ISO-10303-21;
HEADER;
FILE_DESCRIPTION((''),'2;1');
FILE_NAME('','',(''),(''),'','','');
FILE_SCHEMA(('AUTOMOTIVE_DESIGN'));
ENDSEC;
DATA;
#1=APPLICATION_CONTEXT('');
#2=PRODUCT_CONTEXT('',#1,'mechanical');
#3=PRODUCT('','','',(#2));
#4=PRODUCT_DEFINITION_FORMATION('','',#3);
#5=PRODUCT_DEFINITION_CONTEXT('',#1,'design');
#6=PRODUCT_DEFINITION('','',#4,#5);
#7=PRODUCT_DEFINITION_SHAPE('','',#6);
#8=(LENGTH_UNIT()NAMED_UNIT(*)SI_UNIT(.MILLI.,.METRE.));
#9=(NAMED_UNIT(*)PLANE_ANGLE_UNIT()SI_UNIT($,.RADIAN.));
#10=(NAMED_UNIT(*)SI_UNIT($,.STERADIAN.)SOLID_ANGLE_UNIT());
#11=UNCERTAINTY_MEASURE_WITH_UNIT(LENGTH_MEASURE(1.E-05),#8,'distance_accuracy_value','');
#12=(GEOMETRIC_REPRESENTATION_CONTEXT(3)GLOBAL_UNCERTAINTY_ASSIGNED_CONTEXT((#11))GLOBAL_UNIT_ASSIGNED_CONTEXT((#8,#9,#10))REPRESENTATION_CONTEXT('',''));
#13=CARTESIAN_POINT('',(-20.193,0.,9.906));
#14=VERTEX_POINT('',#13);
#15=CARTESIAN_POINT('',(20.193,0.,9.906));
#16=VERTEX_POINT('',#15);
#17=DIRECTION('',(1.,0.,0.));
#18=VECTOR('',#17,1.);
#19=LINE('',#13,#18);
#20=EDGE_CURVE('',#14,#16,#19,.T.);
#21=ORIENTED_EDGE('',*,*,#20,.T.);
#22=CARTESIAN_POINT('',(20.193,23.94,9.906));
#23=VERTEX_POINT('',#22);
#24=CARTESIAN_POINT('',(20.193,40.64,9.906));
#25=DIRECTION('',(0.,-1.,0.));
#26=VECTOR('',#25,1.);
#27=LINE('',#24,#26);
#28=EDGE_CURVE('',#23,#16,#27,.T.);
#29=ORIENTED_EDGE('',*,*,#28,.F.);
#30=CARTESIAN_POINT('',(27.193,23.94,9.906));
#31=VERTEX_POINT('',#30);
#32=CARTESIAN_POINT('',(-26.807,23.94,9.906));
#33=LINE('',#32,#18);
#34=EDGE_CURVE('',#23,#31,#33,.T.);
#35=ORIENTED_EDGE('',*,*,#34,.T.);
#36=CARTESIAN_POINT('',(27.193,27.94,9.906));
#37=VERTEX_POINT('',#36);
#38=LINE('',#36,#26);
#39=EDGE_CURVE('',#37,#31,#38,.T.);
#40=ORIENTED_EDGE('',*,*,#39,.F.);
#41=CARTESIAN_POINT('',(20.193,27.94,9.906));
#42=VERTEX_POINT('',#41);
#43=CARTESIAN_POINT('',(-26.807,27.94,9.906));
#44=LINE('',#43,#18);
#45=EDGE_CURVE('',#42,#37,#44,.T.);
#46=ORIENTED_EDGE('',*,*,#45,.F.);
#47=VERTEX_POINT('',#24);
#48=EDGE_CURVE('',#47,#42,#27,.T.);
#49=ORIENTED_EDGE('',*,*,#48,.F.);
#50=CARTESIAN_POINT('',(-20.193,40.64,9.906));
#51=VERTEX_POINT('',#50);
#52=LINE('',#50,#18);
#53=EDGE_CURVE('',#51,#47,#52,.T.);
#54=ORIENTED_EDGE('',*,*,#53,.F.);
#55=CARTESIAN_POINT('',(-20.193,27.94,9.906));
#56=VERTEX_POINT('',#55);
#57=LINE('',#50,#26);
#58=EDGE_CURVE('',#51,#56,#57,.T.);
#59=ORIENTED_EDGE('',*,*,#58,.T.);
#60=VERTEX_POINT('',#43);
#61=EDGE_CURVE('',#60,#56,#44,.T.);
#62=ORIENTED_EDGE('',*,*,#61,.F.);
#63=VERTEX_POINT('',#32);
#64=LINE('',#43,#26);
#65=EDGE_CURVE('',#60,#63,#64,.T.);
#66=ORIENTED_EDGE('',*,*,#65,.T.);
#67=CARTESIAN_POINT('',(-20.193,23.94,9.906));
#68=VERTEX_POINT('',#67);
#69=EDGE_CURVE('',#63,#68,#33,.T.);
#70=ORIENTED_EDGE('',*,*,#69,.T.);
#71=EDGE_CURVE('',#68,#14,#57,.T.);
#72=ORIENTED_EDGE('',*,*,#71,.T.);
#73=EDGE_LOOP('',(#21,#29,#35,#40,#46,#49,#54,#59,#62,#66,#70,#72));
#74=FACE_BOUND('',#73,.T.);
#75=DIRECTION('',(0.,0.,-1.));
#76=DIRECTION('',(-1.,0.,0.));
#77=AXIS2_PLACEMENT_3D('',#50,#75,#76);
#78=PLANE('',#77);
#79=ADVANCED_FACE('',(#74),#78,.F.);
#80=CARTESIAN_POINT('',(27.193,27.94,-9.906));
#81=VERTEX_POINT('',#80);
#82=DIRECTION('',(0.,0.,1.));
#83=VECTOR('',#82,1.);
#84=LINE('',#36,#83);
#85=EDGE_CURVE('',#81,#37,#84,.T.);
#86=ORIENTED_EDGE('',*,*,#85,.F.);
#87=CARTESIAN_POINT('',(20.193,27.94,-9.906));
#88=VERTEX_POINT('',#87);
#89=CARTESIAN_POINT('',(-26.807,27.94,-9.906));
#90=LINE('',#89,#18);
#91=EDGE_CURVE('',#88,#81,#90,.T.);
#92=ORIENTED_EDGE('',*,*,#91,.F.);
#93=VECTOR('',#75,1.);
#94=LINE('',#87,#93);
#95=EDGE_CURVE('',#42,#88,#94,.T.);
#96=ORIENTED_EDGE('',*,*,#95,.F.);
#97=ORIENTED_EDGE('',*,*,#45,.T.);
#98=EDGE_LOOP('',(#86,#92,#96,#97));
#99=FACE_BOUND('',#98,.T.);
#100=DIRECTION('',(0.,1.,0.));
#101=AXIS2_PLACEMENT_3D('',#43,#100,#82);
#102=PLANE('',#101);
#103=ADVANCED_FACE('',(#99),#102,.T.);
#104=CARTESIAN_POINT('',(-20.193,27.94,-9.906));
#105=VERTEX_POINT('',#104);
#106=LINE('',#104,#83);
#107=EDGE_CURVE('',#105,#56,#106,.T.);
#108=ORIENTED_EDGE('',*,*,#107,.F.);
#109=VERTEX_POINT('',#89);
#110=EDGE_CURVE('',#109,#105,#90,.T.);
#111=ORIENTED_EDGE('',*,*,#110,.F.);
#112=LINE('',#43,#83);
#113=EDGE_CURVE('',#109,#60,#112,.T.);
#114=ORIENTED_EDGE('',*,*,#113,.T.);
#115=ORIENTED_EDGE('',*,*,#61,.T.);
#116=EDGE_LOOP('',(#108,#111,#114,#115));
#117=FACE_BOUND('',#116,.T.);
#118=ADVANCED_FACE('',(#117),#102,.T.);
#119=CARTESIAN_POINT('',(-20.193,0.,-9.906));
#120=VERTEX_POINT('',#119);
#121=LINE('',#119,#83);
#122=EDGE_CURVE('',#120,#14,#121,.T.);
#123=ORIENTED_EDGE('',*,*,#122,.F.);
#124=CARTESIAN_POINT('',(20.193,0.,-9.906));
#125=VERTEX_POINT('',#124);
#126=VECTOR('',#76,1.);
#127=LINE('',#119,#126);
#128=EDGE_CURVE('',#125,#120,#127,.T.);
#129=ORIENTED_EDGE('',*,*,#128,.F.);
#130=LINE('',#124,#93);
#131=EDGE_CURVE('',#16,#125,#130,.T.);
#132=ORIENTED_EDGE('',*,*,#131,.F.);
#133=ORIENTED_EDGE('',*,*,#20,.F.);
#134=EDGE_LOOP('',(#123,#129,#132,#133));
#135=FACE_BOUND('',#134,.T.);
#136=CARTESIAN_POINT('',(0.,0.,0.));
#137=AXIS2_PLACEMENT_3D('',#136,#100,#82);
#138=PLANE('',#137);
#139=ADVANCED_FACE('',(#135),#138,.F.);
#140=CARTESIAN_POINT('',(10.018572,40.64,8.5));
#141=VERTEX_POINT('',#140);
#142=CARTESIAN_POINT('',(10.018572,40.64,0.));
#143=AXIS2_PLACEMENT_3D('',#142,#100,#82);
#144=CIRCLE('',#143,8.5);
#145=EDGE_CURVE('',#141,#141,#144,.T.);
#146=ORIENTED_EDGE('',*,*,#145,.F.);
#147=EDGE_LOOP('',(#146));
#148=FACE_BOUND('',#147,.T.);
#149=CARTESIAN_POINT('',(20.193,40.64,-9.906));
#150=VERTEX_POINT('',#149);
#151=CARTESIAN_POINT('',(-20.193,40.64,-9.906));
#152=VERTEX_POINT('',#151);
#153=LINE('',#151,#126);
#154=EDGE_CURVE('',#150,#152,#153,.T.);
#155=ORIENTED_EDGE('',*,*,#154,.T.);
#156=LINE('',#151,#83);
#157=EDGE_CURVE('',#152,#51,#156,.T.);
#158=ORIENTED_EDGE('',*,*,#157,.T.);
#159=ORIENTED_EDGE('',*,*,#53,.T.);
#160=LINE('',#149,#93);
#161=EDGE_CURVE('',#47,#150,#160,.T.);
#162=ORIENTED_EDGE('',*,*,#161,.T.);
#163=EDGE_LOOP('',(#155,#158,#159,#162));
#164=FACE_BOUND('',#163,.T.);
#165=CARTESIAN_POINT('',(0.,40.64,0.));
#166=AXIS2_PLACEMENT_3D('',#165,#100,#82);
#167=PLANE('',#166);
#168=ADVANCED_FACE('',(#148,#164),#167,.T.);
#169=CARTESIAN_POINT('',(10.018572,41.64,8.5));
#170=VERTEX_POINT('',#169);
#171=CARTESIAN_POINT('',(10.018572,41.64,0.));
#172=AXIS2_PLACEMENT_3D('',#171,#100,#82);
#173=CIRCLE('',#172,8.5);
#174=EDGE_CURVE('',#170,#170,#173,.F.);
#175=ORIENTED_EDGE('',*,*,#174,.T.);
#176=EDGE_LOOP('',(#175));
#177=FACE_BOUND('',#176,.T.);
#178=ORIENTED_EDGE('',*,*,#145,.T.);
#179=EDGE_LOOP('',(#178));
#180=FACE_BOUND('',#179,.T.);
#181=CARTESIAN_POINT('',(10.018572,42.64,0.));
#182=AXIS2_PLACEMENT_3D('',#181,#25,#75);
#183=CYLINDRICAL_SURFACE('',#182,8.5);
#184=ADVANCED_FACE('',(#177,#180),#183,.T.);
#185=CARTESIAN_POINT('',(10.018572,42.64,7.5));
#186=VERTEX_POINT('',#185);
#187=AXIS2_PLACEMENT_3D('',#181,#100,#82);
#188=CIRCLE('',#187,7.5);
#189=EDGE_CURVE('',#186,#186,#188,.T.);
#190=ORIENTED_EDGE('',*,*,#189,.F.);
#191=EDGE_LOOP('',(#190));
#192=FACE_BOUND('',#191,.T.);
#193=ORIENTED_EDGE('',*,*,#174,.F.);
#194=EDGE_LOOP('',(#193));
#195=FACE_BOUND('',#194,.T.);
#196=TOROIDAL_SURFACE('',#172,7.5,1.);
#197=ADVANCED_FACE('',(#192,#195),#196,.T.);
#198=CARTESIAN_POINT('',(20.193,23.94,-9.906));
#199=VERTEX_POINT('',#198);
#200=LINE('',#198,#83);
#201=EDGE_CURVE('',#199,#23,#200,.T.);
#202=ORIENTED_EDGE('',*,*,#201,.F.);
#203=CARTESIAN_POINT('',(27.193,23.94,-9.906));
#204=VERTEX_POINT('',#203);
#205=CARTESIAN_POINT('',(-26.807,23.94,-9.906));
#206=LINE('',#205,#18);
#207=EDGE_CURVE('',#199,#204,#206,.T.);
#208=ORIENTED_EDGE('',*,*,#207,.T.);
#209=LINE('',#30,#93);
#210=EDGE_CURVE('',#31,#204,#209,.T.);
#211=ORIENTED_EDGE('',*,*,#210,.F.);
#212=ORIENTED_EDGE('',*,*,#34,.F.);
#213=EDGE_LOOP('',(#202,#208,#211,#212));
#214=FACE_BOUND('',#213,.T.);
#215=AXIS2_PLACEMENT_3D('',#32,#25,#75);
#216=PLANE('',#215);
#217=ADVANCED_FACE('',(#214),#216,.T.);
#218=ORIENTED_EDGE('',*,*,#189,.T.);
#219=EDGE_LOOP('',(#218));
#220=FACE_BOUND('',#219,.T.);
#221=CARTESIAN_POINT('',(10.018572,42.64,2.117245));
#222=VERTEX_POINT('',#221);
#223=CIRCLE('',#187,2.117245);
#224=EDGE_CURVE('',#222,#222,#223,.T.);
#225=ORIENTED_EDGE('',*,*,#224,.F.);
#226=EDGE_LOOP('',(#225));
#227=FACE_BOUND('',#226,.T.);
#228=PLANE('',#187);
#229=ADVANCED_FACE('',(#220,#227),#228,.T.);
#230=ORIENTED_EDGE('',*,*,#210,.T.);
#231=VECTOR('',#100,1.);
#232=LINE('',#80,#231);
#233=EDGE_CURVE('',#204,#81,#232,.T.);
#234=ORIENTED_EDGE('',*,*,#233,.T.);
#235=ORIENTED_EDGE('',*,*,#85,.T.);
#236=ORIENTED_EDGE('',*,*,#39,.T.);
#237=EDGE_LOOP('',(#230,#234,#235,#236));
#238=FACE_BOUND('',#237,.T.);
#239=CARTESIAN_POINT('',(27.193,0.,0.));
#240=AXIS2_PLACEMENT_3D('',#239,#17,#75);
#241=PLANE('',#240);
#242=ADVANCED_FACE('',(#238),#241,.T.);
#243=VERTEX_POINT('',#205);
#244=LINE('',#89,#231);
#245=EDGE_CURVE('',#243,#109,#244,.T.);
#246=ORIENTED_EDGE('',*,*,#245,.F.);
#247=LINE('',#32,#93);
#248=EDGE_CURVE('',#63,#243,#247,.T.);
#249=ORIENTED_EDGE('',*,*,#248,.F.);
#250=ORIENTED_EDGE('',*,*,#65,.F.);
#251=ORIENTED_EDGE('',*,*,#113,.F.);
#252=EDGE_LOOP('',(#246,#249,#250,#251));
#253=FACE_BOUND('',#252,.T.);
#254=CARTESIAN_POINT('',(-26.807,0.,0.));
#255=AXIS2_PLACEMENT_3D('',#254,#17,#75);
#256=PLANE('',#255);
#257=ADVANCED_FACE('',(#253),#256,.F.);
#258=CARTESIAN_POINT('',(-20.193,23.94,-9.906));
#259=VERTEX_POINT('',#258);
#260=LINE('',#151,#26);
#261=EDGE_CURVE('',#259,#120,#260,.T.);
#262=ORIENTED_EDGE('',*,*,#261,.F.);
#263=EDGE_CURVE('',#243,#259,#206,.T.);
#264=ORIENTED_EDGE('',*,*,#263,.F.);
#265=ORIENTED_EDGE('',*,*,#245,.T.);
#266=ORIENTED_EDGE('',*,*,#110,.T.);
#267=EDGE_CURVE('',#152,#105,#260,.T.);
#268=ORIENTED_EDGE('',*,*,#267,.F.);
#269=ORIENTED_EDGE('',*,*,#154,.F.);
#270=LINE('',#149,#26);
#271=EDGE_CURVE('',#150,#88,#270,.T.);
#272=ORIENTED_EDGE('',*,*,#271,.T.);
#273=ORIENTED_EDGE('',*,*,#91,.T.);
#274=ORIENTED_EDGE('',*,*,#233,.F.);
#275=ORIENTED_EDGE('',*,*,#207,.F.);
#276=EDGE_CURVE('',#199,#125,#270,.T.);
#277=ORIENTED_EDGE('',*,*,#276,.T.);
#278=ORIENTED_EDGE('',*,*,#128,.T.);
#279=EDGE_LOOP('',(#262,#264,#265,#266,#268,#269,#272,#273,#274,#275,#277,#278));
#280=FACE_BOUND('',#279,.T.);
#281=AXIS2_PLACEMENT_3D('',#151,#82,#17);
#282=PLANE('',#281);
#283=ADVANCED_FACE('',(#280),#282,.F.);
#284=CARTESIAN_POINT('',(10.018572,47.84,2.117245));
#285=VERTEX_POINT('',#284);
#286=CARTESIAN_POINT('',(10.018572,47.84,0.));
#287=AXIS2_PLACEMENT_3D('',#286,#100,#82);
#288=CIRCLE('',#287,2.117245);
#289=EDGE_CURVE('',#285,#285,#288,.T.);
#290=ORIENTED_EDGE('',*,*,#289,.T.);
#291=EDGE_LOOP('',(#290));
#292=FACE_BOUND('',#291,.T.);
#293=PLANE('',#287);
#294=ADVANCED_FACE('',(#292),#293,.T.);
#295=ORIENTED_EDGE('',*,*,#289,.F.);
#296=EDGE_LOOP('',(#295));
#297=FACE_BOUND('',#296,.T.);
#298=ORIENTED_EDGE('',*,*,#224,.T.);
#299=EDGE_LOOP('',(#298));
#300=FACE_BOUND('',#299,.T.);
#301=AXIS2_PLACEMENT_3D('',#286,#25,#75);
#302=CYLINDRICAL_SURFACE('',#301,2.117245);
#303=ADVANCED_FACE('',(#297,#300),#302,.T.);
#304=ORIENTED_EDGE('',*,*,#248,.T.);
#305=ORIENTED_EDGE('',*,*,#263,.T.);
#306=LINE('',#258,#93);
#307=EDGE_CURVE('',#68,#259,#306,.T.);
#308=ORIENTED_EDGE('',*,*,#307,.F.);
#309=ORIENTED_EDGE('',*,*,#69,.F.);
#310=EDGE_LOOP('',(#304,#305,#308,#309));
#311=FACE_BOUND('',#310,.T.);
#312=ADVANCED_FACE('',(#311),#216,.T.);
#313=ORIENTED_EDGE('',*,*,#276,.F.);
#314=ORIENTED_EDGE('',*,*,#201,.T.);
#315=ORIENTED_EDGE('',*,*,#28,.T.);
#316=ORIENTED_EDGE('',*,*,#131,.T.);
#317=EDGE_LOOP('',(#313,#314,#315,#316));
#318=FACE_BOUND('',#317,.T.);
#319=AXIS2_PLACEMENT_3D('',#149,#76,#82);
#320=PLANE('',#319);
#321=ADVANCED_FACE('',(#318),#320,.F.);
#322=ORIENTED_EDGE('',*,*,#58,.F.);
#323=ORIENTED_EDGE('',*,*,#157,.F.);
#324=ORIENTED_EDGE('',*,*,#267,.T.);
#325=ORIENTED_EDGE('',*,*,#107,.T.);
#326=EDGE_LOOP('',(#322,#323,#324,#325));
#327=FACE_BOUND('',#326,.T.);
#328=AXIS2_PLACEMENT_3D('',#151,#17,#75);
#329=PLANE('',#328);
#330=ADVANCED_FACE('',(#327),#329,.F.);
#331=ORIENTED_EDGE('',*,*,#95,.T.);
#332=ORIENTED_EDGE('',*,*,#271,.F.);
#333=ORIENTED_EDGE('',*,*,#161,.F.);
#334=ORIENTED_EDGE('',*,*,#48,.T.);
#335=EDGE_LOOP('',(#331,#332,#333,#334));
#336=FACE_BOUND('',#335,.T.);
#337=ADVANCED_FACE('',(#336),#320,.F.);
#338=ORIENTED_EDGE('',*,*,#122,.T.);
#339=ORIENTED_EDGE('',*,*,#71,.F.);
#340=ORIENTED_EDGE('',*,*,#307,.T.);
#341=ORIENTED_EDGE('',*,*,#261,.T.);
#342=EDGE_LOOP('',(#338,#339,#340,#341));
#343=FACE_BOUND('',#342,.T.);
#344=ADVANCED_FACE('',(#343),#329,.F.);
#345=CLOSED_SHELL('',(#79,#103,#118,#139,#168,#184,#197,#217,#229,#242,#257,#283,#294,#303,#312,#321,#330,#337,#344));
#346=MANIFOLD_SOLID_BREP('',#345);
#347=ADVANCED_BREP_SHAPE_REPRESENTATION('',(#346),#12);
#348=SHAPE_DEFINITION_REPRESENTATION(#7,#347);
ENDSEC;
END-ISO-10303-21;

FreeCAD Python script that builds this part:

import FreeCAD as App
import Part
import Sketcher


def edges_at(feature, points):
    """Names of the edges that pass closest to the given points."""
    edges = feature.Shape.Edges
    near = lambda p: min(range(len(edges)), key=lambda i: edges[i].distToShape(Part.Vertex(*p))[0])
    return sorted({f"Edge{near(p) + 1}" for p in points})

doc = App.newDocument("Part")
body = doc.addObject("PartDesign::Body", "Body")

sketch1 = doc.addObject("Sketcher::SketchObject", "Sketch")
body.addObject(sketch1)
sketch1.AttachmentSupport = (doc.XZ_Plane, [""])
sketch1.MapMode = "FlatFace"
sketch1.addGeometry([
    Part.LineSegment(App.Vector(-20, -10, 0), App.Vector(-20, 10, 0)),
    Part.LineSegment(App.Vector(-20, 10, 0), App.Vector(20, 10, 0)),
    Part.LineSegment(App.Vector(20, 10, 0), App.Vector(20, -10, 0)),
    Part.LineSegment(App.Vector(20, -10, 0), App.Vector(-20, -10, 0)),
], False)
sketch1.addConstraint([
    Sketcher.Constraint("Coincident", 0, 2, 1, 1),
    Sketcher.Constraint("Coincident", 1, 2, 2, 1),
    Sketcher.Constraint("Coincident", 2, 2, 3, 1),
    Sketcher.Constraint("Coincident", 3, 2, 0, 1),
    Sketcher.Constraint("Vertical", 0),
    Sketcher.Constraint("Horizontal", 1),
    Sketcher.Constraint("Vertical", 2),
    Sketcher.Constraint("Horizontal", 3),
    Sketcher.Constraint("Symmetric", 0, 2, 2, 2, -1, 1),
    Sketcher.Constraint("DistanceX", 1, 1, 1, 2, 40.386),
    Sketcher.Constraint("DistanceY", 0, 1, 0, 2, 19.812),
])
pad1 = doc.addObject("PartDesign::Pad", "Pad")
body.addObject(pad1)
pad1.Profile = sketch1
pad1.Length = 40.64
pad1.Reversed = True

sketch2 = doc.addObject("Sketcher::SketchObject", "Sketch001")
body.addObject(sketch2)
sketch2.AttachmentSupport = (doc.YZ_Plane, [""])
sketch2.MapMode = "FlatFace"
sketch2.AttachmentOffset = App.Placement(App.Vector(0, 0, 20.193), App.Rotation())
sketch2.addGeometry([
    Part.LineSegment(App.Vector(27.9, 9.9, 0), App.Vector(23.9, 9.9, 0)),
    Part.LineSegment(App.Vector(23.9, 9.9, 0), App.Vector(23.9, -9.9, 0)),
    Part.LineSegment(App.Vector(23.9, -9.9, 0), App.Vector(27.9, -9.9, 0)),
    Part.LineSegment(App.Vector(27.9, -9.9, 0), App.Vector(27.9, 9.9, 0)),
], False)
sketch2.addConstraint([
    Sketcher.Constraint("Coincident", 0, 2, 1, 1),
    Sketcher.Constraint("Coincident", 1, 2, 2, 1),
    Sketcher.Constraint("Coincident", 2, 2, 3, 1),
    Sketcher.Constraint("Coincident", 3, 2, 0, 1),
    Sketcher.Constraint("Horizontal", 0),
    Sketcher.Constraint("Vertical", 1),
    Sketcher.Constraint("Horizontal", 2),
    Sketcher.Constraint("Vertical", 3),
    Sketcher.Constraint("DistanceX", 0, 2, 0, 1, 4.0),
    Sketcher.Constraint("DistanceY", 1, 2, 1, 1, 19.812),
    Sketcher.Constraint("DistanceX", -1, 1, 0, 2, 23.94),
    Sketcher.Constraint("DistanceY", -1, 1, 0, 2, 9.906),
])
pad2 = doc.addObject("PartDesign::Pad", "Pad001")
body.addObject(pad2)
pad2.Profile = sketch2
pad2.Type = "TwoLengths"
pad2.Length = 7
pad2.Length2 = 47

sketch3 = doc.addObject("Sketcher::SketchObject", "Sketch002")
body.addObject(sketch3)
sketch3.AttachmentSupport = (doc.XZ_Plane, [""])
sketch3.MapMode = "FlatFace"
sketch3.AttachmentOffset = App.Placement(App.Vector(0, 0, -40.64), App.Rotation())
sketch3.addGeometry(Part.Circle(App.Vector(10, 0, 0), App.Vector(0, 0, 1), 8), False)
sketch3.addConstraint([
    Sketcher.Constraint("PointOnObject", 0, 3, -1),
    Sketcher.Constraint("Diameter", 0, 17.0),
    Sketcher.Constraint("DistanceX", -1, 1, 0, 3, 10.018572),
])
pad3 = doc.addObject("PartDesign::Pad", "Pad002")
body.addObject(pad3)
pad3.Profile = sketch3
pad3.Length = 2
pad3.Reversed = True
doc.recompute()

fillet = doc.addObject("PartDesign::Fillet", "Fillet")
body.addObject(fillet)
fillet.Base = (pad3, edges_at(pad3, [(1.519, 42.64, 0)]))
fillet.Radius = 1

sketch4 = doc.addObject("Sketcher::SketchObject", "Sketch003")
body.addObject(sketch4)
sketch4.AttachmentSupport = (doc.XZ_Plane, [""])
sketch4.MapMode = "FlatFace"
sketch4.AttachmentOffset = App.Placement(App.Vector(0, 0, -42.64), App.Rotation())
sketch4.addGeometry(Part.Circle(App.Vector(10, 0, 0), App.Vector(0, 0, 1), 2.1), False)
sketch4.addConstraint([
    Sketcher.Constraint("PointOnObject", 0, 3, -1),
    Sketcher.Constraint("Diameter", 0, 4.234491),
    Sketcher.Constraint("DistanceX", -1, 1, 0, 3, 10.018572),
])
pad4 = doc.addObject("PartDesign::Pad", "Pad003")
body.addObject(pad4)
pad4.Profile = sketch4
pad4.Length = 5.2
pad4.Reversed = True

doc.recompute()
